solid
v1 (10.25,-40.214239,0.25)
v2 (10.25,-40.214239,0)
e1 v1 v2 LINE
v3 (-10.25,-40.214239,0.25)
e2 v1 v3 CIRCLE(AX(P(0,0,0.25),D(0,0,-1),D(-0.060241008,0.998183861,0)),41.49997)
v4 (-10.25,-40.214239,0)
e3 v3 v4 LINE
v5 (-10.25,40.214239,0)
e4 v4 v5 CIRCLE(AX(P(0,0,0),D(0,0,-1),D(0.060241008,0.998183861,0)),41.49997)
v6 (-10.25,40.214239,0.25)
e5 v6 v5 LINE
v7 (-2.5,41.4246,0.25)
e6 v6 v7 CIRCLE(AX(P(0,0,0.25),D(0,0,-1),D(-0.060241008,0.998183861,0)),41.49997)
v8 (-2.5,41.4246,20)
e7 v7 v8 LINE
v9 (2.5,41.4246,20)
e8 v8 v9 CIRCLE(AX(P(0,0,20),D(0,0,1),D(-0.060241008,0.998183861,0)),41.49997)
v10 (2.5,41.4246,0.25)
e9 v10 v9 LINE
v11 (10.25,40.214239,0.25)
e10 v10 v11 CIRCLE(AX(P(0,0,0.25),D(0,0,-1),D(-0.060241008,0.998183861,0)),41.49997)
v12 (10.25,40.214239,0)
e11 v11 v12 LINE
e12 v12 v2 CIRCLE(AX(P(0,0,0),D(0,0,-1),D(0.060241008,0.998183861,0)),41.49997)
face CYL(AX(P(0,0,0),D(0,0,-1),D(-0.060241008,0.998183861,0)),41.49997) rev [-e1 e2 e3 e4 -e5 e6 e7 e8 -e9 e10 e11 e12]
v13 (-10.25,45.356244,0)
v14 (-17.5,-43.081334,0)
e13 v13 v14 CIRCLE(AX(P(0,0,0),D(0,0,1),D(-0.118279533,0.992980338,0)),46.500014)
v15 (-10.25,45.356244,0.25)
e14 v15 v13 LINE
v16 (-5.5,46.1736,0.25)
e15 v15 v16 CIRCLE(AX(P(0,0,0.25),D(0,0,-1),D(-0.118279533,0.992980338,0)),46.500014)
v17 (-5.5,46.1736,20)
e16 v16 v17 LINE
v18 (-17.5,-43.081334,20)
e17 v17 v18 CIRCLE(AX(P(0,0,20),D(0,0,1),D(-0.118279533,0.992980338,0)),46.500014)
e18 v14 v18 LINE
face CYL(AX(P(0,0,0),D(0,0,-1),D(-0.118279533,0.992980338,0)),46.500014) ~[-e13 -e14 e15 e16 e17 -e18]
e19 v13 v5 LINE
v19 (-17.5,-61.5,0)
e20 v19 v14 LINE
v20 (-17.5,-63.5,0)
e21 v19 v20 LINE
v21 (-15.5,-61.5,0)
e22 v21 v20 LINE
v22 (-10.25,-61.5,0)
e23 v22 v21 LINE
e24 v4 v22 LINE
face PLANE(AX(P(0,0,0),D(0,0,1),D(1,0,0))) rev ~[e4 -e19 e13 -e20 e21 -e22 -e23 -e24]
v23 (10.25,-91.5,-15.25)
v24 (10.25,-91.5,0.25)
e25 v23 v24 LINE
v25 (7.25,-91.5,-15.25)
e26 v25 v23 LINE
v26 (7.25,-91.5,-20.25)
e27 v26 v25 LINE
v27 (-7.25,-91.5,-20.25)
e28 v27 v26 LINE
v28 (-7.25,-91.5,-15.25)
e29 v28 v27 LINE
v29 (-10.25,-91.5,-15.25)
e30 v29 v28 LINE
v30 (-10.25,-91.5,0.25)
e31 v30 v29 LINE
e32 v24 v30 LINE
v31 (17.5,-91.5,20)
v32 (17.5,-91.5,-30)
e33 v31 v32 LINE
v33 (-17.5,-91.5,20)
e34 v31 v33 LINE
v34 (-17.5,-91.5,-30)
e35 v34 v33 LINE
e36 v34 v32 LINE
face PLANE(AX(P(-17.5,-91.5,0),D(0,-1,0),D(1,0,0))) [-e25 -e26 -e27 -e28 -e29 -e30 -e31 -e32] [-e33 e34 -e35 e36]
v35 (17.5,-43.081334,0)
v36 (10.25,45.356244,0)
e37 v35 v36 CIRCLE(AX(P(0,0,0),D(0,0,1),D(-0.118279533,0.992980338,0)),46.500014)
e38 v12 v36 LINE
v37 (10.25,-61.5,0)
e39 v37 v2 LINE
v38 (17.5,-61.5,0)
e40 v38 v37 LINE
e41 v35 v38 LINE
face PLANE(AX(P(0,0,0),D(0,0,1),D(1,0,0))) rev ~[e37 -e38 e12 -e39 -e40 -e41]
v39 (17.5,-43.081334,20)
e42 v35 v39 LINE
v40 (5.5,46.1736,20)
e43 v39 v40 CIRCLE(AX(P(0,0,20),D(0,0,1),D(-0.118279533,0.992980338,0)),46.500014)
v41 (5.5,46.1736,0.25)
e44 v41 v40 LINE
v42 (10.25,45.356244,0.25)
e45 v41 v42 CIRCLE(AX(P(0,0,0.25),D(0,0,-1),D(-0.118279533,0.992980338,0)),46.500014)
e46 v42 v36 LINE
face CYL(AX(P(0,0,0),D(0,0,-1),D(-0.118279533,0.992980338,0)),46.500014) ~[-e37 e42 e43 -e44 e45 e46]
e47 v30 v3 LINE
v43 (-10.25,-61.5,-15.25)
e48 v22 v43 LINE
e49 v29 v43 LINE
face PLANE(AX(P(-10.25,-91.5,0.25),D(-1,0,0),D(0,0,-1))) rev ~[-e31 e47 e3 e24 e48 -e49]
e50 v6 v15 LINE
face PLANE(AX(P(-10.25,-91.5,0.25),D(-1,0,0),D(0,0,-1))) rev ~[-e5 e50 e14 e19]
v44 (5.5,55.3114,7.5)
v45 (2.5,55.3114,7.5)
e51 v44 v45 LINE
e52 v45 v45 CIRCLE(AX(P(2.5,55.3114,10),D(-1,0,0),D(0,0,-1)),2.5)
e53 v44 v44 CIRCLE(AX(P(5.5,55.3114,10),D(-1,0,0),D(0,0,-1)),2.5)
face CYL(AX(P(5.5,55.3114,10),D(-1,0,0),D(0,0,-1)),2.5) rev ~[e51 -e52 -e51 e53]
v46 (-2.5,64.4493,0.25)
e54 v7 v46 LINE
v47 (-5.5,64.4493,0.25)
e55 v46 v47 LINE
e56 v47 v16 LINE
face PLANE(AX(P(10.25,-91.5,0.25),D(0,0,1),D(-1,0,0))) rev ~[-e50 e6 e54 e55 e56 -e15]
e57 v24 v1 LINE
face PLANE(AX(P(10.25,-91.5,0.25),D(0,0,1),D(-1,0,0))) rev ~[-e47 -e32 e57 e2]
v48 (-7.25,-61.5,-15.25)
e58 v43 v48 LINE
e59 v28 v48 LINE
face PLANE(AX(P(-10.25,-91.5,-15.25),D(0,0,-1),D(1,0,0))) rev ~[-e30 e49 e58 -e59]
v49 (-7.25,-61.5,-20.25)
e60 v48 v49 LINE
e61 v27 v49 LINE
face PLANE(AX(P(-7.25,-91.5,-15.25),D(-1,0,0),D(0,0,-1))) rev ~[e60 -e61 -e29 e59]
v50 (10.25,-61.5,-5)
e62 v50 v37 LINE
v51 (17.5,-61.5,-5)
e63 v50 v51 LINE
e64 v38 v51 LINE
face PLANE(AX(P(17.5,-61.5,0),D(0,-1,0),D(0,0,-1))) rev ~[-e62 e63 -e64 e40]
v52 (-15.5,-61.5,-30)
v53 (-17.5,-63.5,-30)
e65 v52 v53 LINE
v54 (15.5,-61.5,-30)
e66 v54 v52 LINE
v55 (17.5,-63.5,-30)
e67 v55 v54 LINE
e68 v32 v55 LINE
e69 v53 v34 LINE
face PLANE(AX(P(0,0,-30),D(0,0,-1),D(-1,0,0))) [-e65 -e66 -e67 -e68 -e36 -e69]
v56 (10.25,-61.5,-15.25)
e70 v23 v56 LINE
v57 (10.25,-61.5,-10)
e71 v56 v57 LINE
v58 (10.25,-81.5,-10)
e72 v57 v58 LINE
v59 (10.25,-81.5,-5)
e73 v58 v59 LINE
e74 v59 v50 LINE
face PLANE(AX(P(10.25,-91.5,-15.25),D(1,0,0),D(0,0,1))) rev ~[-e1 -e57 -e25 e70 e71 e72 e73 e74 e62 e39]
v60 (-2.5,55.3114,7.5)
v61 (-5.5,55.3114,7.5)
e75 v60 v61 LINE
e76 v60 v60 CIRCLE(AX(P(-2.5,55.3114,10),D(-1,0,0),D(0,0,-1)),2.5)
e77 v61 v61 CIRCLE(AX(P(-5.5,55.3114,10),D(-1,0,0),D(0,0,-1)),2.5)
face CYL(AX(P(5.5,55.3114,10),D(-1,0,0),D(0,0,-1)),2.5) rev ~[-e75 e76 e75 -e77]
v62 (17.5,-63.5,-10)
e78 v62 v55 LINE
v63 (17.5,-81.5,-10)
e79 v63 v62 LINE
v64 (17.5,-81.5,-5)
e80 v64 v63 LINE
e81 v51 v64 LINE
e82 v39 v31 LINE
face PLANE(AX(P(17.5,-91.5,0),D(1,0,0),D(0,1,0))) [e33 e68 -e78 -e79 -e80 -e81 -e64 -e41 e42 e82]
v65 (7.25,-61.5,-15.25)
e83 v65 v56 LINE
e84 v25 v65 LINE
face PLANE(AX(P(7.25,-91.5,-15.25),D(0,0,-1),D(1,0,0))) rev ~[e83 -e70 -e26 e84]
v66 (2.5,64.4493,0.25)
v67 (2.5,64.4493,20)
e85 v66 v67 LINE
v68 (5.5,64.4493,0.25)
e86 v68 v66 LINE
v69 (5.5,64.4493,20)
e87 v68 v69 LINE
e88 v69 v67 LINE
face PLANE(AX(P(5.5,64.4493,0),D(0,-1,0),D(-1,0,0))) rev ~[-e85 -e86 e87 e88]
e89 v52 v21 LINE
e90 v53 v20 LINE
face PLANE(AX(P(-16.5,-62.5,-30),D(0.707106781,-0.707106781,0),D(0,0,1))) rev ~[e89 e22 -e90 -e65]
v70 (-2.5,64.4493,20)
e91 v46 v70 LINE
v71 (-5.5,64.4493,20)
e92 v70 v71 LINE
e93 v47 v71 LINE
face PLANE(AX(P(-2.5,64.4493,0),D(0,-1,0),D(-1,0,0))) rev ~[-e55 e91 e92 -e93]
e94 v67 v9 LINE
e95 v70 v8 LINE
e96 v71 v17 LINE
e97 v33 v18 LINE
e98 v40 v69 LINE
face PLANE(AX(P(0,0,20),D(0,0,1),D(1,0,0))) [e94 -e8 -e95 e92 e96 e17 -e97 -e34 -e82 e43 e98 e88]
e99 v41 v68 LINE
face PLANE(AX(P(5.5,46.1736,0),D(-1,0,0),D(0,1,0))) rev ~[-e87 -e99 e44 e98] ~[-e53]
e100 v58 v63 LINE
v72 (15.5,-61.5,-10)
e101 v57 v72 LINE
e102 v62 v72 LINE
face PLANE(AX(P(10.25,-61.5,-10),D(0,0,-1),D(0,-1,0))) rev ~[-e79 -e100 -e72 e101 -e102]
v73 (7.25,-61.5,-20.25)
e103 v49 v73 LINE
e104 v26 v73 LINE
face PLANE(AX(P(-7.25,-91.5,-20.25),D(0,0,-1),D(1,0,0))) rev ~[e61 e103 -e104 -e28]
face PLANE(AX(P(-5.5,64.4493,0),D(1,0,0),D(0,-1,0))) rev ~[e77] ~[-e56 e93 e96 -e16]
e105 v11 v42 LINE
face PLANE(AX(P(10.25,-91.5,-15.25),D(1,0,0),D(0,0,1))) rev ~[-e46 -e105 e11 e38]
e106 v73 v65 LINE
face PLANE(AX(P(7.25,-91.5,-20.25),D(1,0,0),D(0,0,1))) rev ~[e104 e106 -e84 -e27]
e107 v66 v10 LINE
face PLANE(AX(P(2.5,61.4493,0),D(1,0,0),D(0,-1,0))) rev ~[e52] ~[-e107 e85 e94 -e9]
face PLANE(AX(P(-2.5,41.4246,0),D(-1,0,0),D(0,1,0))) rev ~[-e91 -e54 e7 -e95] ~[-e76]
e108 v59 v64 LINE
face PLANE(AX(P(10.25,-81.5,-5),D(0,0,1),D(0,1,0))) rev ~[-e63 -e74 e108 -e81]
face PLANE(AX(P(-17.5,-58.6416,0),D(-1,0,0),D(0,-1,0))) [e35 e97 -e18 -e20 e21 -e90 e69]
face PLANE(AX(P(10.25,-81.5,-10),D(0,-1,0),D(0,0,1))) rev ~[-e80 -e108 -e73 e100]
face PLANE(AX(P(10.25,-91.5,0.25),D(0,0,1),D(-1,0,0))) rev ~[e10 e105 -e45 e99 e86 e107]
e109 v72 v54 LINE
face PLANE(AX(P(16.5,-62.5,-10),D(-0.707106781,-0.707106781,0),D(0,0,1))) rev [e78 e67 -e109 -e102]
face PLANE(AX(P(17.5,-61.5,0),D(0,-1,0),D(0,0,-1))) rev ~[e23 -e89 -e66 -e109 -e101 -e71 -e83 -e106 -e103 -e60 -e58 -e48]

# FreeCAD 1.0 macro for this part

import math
import FreeCAD as App
import Part
import Sketcher


def edges_at(feature, points):
    """Names of the edges that pass closest to the given points."""
    edges = feature.Shape.Edges
    near = lambda p: min(range(len(edges)), key=lambda i: edges[i].distToShape(Part.Vertex(*p))[0])
    return sorted({f"Edge{near(p) + 1}" for p in points})

doc = App.newDocument("Part")
body = doc.addObject("PartDesign::Body", "Body")

# Sketch on XY plane
sketch1 = body.newObject("Sketcher::SketchObject", "Sketch")
sketch1.AttachmentSupport = (doc.getObject("XY_Plane"), [""])
sketch1.MapMode = "FlatFace"
sketch1.addGeometry(Part.LineSegment(App.Vector(-2.5, 41.4, 0), App.Vector(-2.5, 64.4, 0)), False)
sketch1.addGeometry(Part.LineSegment(App.Vector(-2.5, 64.4, 0), App.Vector(-5.5, 64.4, 0)), False)
sketch1.addGeometry(Part.LineSegment(App.Vector(-5.5, 64.4, 0), App.Vector(-5.5, 46.2, 0)), False)
sketch1.addGeometry(Part.ArcOfCircle(Part.Circle(App.Vector(0, 0, 0), App.Vector(0, 0, 1), 46.5), math.radians(97), math.radians(248)), False)
sketch1.addGeometry(Part.LineSegment(App.Vector(-17.5, -43.1, 0), App.Vector(-17.5, -91.5, 0)), False)
sketch1.addGeometry(Part.LineSegment(App.Vector(-17.5, -91.5, 0), App.Vector(17.5, -91.5, 0)), False)
sketch1.addGeometry(Part.LineSegment(App.Vector(17.5, -91.5, 0), App.Vector(17.5, -43.1, 0)), False)
sketch1.addGeometry(Part.ArcOfCircle(Part.Circle(App.Vector(0, 0, 0), App.Vector(0, 0, 1), 46.5), math.radians(-68), math.radians(83)), False)
sketch1.addGeometry(Part.LineSegment(App.Vector(5.5, 46.2, 0), App.Vector(5.5, 64.4, 0)), False)
sketch1.addGeometry(Part.LineSegment(App.Vector(5.5, 64.4, 0), App.Vector(2.5, 64.4, 0)), False)
sketch1.addGeometry(Part.LineSegment(App.Vector(2.5, 64.4, 0), App.Vector(2.5, 41.4, 0)), False)
sketch1.addGeometry(Part.ArcOfCircle(Part.Circle(App.Vector(0, 0, 0), App.Vector(0, 0, 1), 41.5), math.radians(93), math.radians(447)), False)
sketch1.addConstraint(Sketcher.Constraint("Coincident", 0, 2, 1, 1))
sketch1.addConstraint(Sketcher.Constraint("Coincident", 1, 2, 2, 1))
sketch1.addConstraint(Sketcher.Constraint("Coincident", 2, 2, 3, 1))
sketch1.addConstraint(Sketcher.Constraint("Coincident", 3, 2, 4, 1))
sketch1.addConstraint(Sketcher.Constraint("Coincident", 4, 2, 5, 1))
sketch1.addConstraint(Sketcher.Constraint("Coincident", 5, 2, 6, 1))
sketch1.addConstraint(Sketcher.Constraint("Coincident", 6, 2, 7, 1))
sketch1.addConstraint(Sketcher.Constraint("Coincident", 7, 2, 8, 1))
sketch1.addConstraint(Sketcher.Constraint("Coincident", 8, 2, 9, 1))
sketch1.addConstraint(Sketcher.Constraint("Coincident", 9, 2, 10, 1))
sketch1.addConstraint(Sketcher.Constraint("Coincident", 10, 2, 11, 2))
sketch1.addConstraint(Sketcher.Constraint("Coincident", 11, 1, 0, 1))
sketch1.addConstraint(Sketcher.Constraint("Vertical", 0))
sketch1.addConstraint(Sketcher.Constraint("Horizontal", 1))
sketch1.addConstraint(Sketcher.Constraint("Vertical", 2))
sketch1.addConstraint(Sketcher.Constraint("Vertical", 4))
sketch1.addConstraint(Sketcher.Constraint("Horizontal", 5))
sketch1.addConstraint(Sketcher.Constraint("Vertical", 6))
sketch1.addConstraint(Sketcher.Constraint("Vertical", 8))
sketch1.addConstraint(Sketcher.Constraint("Horizontal", 9))
sketch1.addConstraint(Sketcher.Constraint("Vertical", 10))
sketch1.addConstraint(Sketcher.Constraint("Coincident", 3, 3, -1, 1))
sketch1.addConstraint(Sketcher.Constraint("Coincident", 7, 3, -1, 1))
sketch1.addConstraint(Sketcher.Constraint("Coincident", 11, 3, -1, 1))
sketch1.addConstraint(Sketcher.Constraint("Equal", 3, 7))
sketch1.addConstraint(Sketcher.Constraint("Symmetric", 1, 2, 8, 2, -2))
sketch1.addConstraint(Sketcher.Constraint("Horizontal", 3, 2, 6, 2))
sketch1.addConstraint(Sketcher.Constraint("Horizontal", 10, 2, 11, 1))
sketch1.addConstraint(Sketcher.Constraint("Radius", 3, 46.5))
sketch1.addConstraint(Sketcher.Constraint("Radius", 11, 41.5))
sketch1.addConstraint(Sketcher.Constraint("DistanceX", 1, 2, 1, 1, 3.0))
sketch1.addConstraint(Sketcher.Constraint("DistanceX", 5, 1, 5, 2, 35.0))
sketch1.addConstraint(Sketcher.Constraint("DistanceX", 0, 2, 9, 2, 5.0))
sketch1.addConstraint(Sketcher.Constraint("DistanceY", 4, 2, -1, 1, 91.5))
sketch1.addConstraint(Sketcher.Constraint("DistanceY", 0, 1, 0, 2, 23.0247))
pad1 = body.newObject("PartDesign::Pad", "Pad")
pad1.Profile = sketch1
pad1.Length = 20

# Sketch on YZ plane
sketch2 = body.newObject("Sketcher::SketchObject", "Sketch001")
sketch2.AttachmentSupport = (doc.getObject("YZ_Plane"), [""])
sketch2.MapMode = "FlatFace"
sketch2.AttachmentOffset = App.Placement(App.Vector(0, 0, 5.5), App.Rotation())
sketch2.addGeometry(Part.Circle(App.Vector(55.3, 10, 0), App.Vector(0, 0, 1), 2.5), False)
sketch2.addConstraint(Sketcher.Constraint("Diameter", 0, 5.0))
sketch2.addConstraint(Sketcher.Constraint("DistanceY", -1, 1, 0, 3, 10.0))
sketch2.addConstraint(Sketcher.Constraint("DistanceX", -1, 1, 0, 3, 55.3114))
doc.recompute()
hole = body.newObject("PartDesign::Hole", "Hole")
hole.Profile = sketch2
hole.ThreadType = "None"
hole.Diameter = 5
hole.DepthType = "ThroughAll"

# Sketch on XY plane
sketch3 = body.newObject("Sketcher::SketchObject", "Sketch002")
sketch3.AttachmentSupport = (doc.getObject("XY_Plane"), [""])
sketch3.MapMode = "FlatFace"
sketch3.addGeometry(Part.LineSegment(App.Vector(-18, -59, 0), App.Vector(18, -59, 0)), False)
sketch3.addGeometry(Part.LineSegment(App.Vector(18, -59, 0), App.Vector(18, -92, 0)), False)
sketch3.addGeometry(Part.LineSegment(App.Vector(18, -92, 0), App.Vector(-18, -92, 0)), False)
sketch3.addGeometry(Part.LineSegment(App.Vector(-18, -92, 0), App.Vector(-18, -59, 0)), False)
sketch3.addConstraint(Sketcher.Constraint("Coincident", 0, 2, 1, 1))
sketch3.addConstraint(Sketcher.Constraint("Coincident", 1, 2, 2, 1))
sketch3.addConstraint(Sketcher.Constraint("Coincident", 2, 2, 3, 1))
sketch3.addConstraint(Sketcher.Constraint("Coincident", 3, 2, 0, 1))
sketch3.addConstraint(Sketcher.Constraint("Horizontal", 0))
sketch3.addConstraint(Sketcher.Constraint("Vertical", 1))
sketch3.addConstraint(Sketcher.Constraint("Horizontal", 2))
sketch3.addConstraint(Sketcher.Constraint("Vertical", 3))
sketch3.addConstraint(Sketcher.Constraint("DistanceX", 0, 1, 0, 2, 35.0))
sketch3.addConstraint(Sketcher.Constraint("DistanceY", 1, 2, 1, 1, 32.8584))
sketch3.addConstraint(Sketcher.Constraint("DistanceX", -1, 1, 0, 2, 17.5))
sketch3.addConstraint(Sketcher.Constraint("DistanceY", 1, 2, -1, 1, 91.5))
pad2 = body.newObject("PartDesign::Pad", "Pad001")
pad2.Profile = sketch3
pad2.Length = 30
pad2.Reversed = True

# Sketch on YZ plane
sketch4 = body.newObject("Sketcher::SketchObject", "Sketch003")
sketch4.AttachmentSupport = (doc.getObject("YZ_Plane"), [""])
sketch4.MapMode = "FlatFace"
sketch4.AttachmentOffset = App.Placement(App.Vector(0, 0, 17.5), App.Rotation())
sketch4.addGeometry(Part.LineSegment(App.Vector(-61.5, -30, 0), App.Vector(-58.6, -30, 0)), False)
sketch4.addGeometry(Part.LineSegment(App.Vector(-58.6, -30, 0), App.Vector(-58.6, 0, 0)), False)
sketch4.addGeometry(Part.LineSegment(App.Vector(-58.6, 0, 0), App.Vector(-61.5, 0, 0)), False)
sketch4.addGeometry(Part.LineSegment(App.Vector(-61.5, 0, 0), App.Vector(-61.5, -30, 0)), False)
sketch4.addConstraint(Sketcher.Constraint("Coincident", 0, 2, 1, 1))
sketch4.addConstraint(Sketcher.Constraint("Coincident", 1, 2, 2, 1))
sketch4.addConstraint(Sketcher.Constraint("Coincident", 2, 2, 3, 1))
sketch4.addConstraint(Sketcher.Constraint("Coincident", 3, 2, 0, 1))
sketch4.addConstraint(Sketcher.Constraint("Horizontal", 0))
sketch4.addConstraint(Sketcher.Constraint("Vertical", 1))
sketch4.addConstraint(Sketcher.Constraint("Horizontal", 2))
sketch4.addConstraint(Sketcher.Constraint("Vertical", 3))
sketch4.addConstraint(Sketcher.Constraint("PointOnObject", 1, 2, -1))
sketch4.addConstraint(Sketcher.Constraint("DistanceY", 1, 1, 1, 2, 30.0))
sketch4.addConstraint(Sketcher.Constraint("DistanceX", 2, 2, -1, 1, 61.5))
sketch4.addConstraint(Sketcher.Constraint("DistanceX", 0, 1, 0, 2, 2.8584))
pocket1 = body.newObject("PartDesign::Pocket", "Pocket")
pocket1.Profile = sketch4
pocket1.Type = "ThroughAll"

# Sketch on XZ plane
sketch5 = body.newObject("Sketcher::SketchObject", "Sketch004")
sketch5.AttachmentSupport = (doc.getObject("XZ_Plane"), [""])
sketch5.MapMode = "FlatFace"
sketch5.AttachmentOffset = App.Placement(App.Vector(0, 0, 91.5), App.Rotation())
sketch5.addGeometry(Part.LineSegment(App.Vector(10.2, -15.2, 0), App.Vector(10.2, 0.2, 0)), False)
sketch5.addGeometry(Part.LineSegment(App.Vector(10.2, 0.2, 0), App.Vector(-10.2, 0.2, 0)), False)
sketch5.addGeometry(Part.LineSegment(App.Vector(-10.2, 0.2, 0), App.Vector(-10.2, -15.2, 0)), False)
sketch5.addGeometry(Part.LineSegment(App.Vector(-10.2, -15.2, 0), App.Vector(-7.2, -15.2, 0)), False)
sketch5.addGeometry(Part.LineSegment(App.Vector(-7.2, -15.2, 0), App.Vector(-7.2, -20.2, 0)), False)
sketch5.addGeometry(Part.LineSegment(App.Vector(-7.2, -20.2, 0), App.Vector(7.2, -20.2, 0)), False)
sketch5.addGeometry(Part.LineSegment(App.Vector(7.2, -20.2, 0), App.Vector(7.2, -15.2, 0)), False)
sketch5.addGeometry(Part.LineSegment(App.Vector(7.2, -15.2, 0), App.Vector(10.2, -15.2, 0)), False)
sketch5.addConstraint(Sketcher.Constraint("Coincident", 0, 2, 1, 1))
sketch5.addConstraint(Sketcher.Constraint("Coincident", 1, 2, 2, 1))
sketch5.addConstraint(Sketcher.Constraint("Coincident", 2, 2, 3, 1))
sketch5.addConstraint(Sketcher.Constraint("Coincident", 3, 2, 4, 1))
sketch5.addConstraint(Sketcher.Constraint("Coincident", 4, 2, 5, 1))
sketch5.addConstraint(Sketcher.Constraint("Coincident", 5, 2, 6, 1))
sketch5.addConstraint(Sketcher.Constraint("Coincident", 6, 2, 7, 1))
sketch5.addConstraint(Sketcher.Constraint("Coincident", 7, 2, 0, 1))
sketch5.addConstraint(Sketcher.Constraint("Vertical", 0))
sketch5.addConstraint(Sketcher.Constraint("Horizontal", 1))
sketch5.addConstraint(Sketcher.Constraint("Vertical", 2))
sketch5.addConstraint(Sketcher.Constraint("Horizontal", 3))
sketch5.addConstraint(Sketcher.Constraint("Vertical", 4))
sketch5.addConstraint(Sketcher.Constraint("Horizontal", 5))
sketch5.addConstraint(Sketcher.Constraint("Vertical", 6))
sketch5.addConstraint(Sketcher.Constraint("Horizontal", 7))
sketch5.addConstraint(Sketcher.Constraint("Symmetric", 3, 2, 6, 2, -2))
sketch5.addConstraint(Sketcher.Constraint("Equal", 3, 7))
sketch5.addConstraint(Sketcher.Constraint("DistanceX", 3, 1, 3, 2, 3.0))
sketch5.addConstraint(Sketcher.Constraint("DistanceY", 4, 2, 4, 1, 5.0))
sketch5.addConstraint(Sketcher.Constraint("DistanceY", -1, 1, 0, 2, 0.25))
sketch5.addConstraint(Sketcher.Constraint("DistanceX", 1, 2, 1, 1, 20.5))
sketch5.addConstraint(Sketcher.Constraint("DistanceY", 0, 1, 0, 2, 15.5))
pocket2 = body.newObject("PartDesign::Pocket", "Pocket001")
pocket2.Profile = sketch5
pocket2.Type = "ThroughAll"

# Sketch on YZ plane
sketch6 = body.newObject("Sketcher::SketchObject", "Sketch005")
sketch6.AttachmentSupport = (doc.getObject("YZ_Plane"), [""])
sketch6.MapMode = "FlatFace"
sketch6.AttachmentOffset = App.Placement(App.Vector(0, 0, 10.25), App.Rotation())
sketch6.addGeometry(Part.LineSegment(App.Vector(-82, -5, 0), App.Vector(-62, -5, 0)), False)
sketch6.addGeometry(Part.LineSegment(App.Vector(-62, -5, 0), App.Vector(-62, -10, 0)), False)
sketch6.addGeometry(Part.LineSegment(App.Vector(-62, -10, 0), App.Vector(-82, -10, 0)), False)
sketch6.addGeometry(Part.LineSegment(App.Vector(-82, -10, 0), App.Vector(-82, -5, 0)), False)
sketch6.addConstraint(Sketcher.Constraint("Coincident", 0, 2, 1, 1))
sketch6.addConstraint(Sketcher.Constraint("Coincident", 1, 2, 2, 1))
sketch6.addConstraint(Sketcher.Constraint("Coincident", 2, 2, 3, 1))
sketch6.addConstraint(Sketcher.Constraint("Coincident", 3, 2, 0, 1))
sketch6.addConstraint(Sketcher.Constraint("Horizontal", 0))
sketch6.addConstraint(Sketcher.Constraint("Vertical", 1))
sketch6.addConstraint(Sketcher.Constraint("Horizontal", 2))
sketch6.addConstraint(Sketcher.Constraint("Vertical", 3))
sketch6.addConstraint(Sketcher.Constraint("DistanceX", 0, 1, 0, 2, 20.0))
sketch6.addConstraint(Sketcher.Constraint("DistanceY", 1, 2, 1, 1, 5.0))
sketch6.addConstraint(Sketcher.Constraint("DistanceY", 0, 2, -1, 1, 5.0))
sketch6.addConstraint(Sketcher.Constraint("DistanceX", 0, 2, -1, 1, 61.5))
pocket3 = body.newObject("PartDesign::Pocket", "Pocket002")
pocket3.Profile = sketch6
pocket3.Type = "ThroughAll"
pocket3.Reversed = True
doc.recompute()

chamfer = body.newObject("PartDesign::Chamfer", "Chamfer")
chamfer.Base = (pocket3, edges_at(pocket3, [(-17.5, -61.5, -15), (17.5, -61.5, -20)]))
chamfer.Size = 2

doc.recompute()
